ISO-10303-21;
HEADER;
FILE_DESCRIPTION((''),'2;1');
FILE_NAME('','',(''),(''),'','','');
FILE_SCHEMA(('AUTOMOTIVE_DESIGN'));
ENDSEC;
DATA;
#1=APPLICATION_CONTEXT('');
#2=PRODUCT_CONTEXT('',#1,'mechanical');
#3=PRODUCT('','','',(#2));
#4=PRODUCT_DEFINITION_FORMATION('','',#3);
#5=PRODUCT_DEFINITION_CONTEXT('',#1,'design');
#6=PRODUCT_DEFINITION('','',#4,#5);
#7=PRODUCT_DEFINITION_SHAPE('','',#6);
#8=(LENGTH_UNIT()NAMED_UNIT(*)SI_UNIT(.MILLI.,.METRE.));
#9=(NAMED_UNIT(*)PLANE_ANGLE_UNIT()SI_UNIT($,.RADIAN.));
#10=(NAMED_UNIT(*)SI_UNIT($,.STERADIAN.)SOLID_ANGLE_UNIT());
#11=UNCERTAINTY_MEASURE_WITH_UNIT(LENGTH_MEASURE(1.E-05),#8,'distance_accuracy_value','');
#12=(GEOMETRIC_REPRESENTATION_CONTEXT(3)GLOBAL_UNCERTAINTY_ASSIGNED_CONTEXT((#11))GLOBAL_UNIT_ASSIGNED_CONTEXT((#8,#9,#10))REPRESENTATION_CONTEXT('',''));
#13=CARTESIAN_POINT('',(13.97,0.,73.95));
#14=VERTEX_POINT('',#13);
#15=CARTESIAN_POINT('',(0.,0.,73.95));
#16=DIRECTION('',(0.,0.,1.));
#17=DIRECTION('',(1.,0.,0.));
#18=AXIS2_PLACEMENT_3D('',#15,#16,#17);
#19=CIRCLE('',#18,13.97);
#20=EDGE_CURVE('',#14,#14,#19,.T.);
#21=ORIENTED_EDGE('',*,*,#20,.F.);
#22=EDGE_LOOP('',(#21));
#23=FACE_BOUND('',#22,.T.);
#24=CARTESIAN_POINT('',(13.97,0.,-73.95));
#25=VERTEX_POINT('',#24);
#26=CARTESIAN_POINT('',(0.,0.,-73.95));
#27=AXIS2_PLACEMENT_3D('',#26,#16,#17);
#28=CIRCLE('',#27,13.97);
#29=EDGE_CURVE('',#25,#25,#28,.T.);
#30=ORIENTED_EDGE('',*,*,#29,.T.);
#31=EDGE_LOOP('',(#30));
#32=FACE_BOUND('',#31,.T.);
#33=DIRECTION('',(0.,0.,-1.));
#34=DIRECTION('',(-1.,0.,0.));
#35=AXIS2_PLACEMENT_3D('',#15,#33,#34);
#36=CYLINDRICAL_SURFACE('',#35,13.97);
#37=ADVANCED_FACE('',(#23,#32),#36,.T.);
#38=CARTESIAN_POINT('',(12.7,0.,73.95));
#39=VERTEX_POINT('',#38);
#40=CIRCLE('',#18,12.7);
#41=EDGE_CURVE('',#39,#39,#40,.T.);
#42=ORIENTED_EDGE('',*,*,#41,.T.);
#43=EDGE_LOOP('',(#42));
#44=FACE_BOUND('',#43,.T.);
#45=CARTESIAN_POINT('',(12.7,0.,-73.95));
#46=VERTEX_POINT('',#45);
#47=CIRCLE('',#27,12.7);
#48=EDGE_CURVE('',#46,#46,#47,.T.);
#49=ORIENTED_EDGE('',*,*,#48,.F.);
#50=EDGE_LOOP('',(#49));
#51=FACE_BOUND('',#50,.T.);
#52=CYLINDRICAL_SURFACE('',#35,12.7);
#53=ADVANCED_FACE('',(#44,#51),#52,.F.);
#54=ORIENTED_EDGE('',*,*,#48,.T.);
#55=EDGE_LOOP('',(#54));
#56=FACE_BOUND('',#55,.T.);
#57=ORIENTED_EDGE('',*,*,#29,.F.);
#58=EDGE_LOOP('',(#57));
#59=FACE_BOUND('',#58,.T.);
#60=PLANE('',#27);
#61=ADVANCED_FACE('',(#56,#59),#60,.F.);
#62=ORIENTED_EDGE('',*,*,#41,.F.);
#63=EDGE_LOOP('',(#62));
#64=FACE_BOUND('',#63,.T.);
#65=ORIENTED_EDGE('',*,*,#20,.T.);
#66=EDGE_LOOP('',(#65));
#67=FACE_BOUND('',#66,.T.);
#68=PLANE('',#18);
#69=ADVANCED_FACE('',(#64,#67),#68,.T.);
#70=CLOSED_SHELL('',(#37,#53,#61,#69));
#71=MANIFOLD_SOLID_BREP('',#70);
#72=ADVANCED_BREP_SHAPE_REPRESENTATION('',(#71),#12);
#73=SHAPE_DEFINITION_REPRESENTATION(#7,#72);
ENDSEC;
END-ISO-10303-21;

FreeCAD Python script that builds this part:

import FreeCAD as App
import Part
import Sketcher
from FreeCAD import Vector
Q = App.Units.Quantity

doc = App.newDocument("Part")
body = doc.addObject("PartDesign::Body", "Body")

sketch1 = body.newObject("Sketcher::SketchObject", "Sketch")
sketch1.AttachmentSupport = (doc.getObject("XY_Plane"), [""])
sketch1.MapMode = "FlatFace"
sketch1.addGeometry(Part.Circle(Vector(0, 0, 0), Vector(0, 0, 1), 13.97), False)
sketch1.addGeometry(Part.Circle(Vector(0, 0, 0), Vector(0, 0, 1), 12.7), False)
sketch1.addConstraint(Sketcher.Constraint("Coincident", 0, 3, -1, 1))
sketch1.addConstraint(Sketcher.Constraint("Coincident", 1, 3, -1, 1))
sketch1.addConstraint(Sketcher.Constraint("Diameter", 1, Q("1 in")))
sketch1.addConstraint(Sketcher.Constraint("Diameter", 0, Q("1.1 in")))
pad1 = body.newObject("PartDesign::Pad", "Pad")
pad1.Profile = sketch1
pad1.Length = 147.9
pad1.Midplane = True

doc.recompute()
